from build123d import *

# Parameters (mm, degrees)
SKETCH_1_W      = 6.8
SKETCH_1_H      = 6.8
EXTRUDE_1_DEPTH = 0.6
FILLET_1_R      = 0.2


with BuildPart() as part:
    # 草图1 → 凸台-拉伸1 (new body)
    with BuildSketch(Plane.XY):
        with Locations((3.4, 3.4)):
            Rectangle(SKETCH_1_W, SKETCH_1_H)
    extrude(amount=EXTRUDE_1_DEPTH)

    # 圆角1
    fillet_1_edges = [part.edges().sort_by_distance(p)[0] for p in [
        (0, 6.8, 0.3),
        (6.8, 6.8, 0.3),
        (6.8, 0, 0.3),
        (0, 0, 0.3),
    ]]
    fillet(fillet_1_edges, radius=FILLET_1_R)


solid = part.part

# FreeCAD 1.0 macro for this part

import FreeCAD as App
import Part
import Sketcher

V = App.Vector


def edges_at(feature, points):
    """Names of the edges that pass closest to the given points."""
    edges = feature.Shape.Edges
    near = lambda p: min(range(len(edges)), key=lambda i: edges[i].distToShape(Part.Vertex(*p))[0])
    return sorted({f"Edge{near(p) + 1}" for p in points})


def add_polygon(sketch, points):
    """Adds a closed chain of lines whose ends are joined by coincident constraints."""
    first, n = sketch.GeometryCount, len(points)
    for a, b in zip(points, points[1:] + points[:1]):
        sketch.addGeometry(Part.LineSegment(App.Vector(*a, 0), App.Vector(*b, 0)), False)
    for i in range(n):
        sketch.addConstraint(Sketcher.Constraint("Coincident", first + i, 2, first + (i + 1) % n, 1))

doc = App.newDocument("Part")
body = doc.addObject("PartDesign::Body", "Body")

sketch1 = doc.addObject("Sketcher::SketchObject", "Sketch")
body.addObject(sketch1)
sketch1.AttachmentSupport = (doc.XY_Plane, [""])
sketch1.MapMode = "FlatFace"
add_polygon(sketch1, [(0, 7), (0, 0), (7, 0), (7, 7)])
sketch1.addConstraint(Sketcher.Constraint("Vertical", 0))
sketch1.addConstraint(Sketcher.Constraint("Horizontal", 1))
sketch1.addConstraint(Sketcher.Constraint("Vertical", 2))
sketch1.addConstraint(Sketcher.Constraint("Horizontal", 3))
sketch1.addConstraint(Sketcher.Constraint("Coincident", 0, 2, -1, 1))
sketch1.addConstraint(Sketcher.Constraint("Equal", 3, 0))
sketch1.addConstraint(Sketcher.Constraint("DistanceX", 1, 1, 1, 2, 6.8))
pad1 = doc.addObject("PartDesign::Pad", "Pad")
body.addObject(pad1)
pad1.Profile = sketch1
pad1.Length = 0.6
doc.recompute()

fillet = doc.addObject("PartDesign::Fillet", "Fillet")
body.addObject(fillet)
fillet.Base = (pad1, edges_at(pad1, [
    (0, 6.8, 0.3),
    (6.8, 6.8, 0.3),
    (6.8, 0, 0.3),
    (0, 0, 0.3),
]))
fillet.Radius = 0.2

doc.recompute()
